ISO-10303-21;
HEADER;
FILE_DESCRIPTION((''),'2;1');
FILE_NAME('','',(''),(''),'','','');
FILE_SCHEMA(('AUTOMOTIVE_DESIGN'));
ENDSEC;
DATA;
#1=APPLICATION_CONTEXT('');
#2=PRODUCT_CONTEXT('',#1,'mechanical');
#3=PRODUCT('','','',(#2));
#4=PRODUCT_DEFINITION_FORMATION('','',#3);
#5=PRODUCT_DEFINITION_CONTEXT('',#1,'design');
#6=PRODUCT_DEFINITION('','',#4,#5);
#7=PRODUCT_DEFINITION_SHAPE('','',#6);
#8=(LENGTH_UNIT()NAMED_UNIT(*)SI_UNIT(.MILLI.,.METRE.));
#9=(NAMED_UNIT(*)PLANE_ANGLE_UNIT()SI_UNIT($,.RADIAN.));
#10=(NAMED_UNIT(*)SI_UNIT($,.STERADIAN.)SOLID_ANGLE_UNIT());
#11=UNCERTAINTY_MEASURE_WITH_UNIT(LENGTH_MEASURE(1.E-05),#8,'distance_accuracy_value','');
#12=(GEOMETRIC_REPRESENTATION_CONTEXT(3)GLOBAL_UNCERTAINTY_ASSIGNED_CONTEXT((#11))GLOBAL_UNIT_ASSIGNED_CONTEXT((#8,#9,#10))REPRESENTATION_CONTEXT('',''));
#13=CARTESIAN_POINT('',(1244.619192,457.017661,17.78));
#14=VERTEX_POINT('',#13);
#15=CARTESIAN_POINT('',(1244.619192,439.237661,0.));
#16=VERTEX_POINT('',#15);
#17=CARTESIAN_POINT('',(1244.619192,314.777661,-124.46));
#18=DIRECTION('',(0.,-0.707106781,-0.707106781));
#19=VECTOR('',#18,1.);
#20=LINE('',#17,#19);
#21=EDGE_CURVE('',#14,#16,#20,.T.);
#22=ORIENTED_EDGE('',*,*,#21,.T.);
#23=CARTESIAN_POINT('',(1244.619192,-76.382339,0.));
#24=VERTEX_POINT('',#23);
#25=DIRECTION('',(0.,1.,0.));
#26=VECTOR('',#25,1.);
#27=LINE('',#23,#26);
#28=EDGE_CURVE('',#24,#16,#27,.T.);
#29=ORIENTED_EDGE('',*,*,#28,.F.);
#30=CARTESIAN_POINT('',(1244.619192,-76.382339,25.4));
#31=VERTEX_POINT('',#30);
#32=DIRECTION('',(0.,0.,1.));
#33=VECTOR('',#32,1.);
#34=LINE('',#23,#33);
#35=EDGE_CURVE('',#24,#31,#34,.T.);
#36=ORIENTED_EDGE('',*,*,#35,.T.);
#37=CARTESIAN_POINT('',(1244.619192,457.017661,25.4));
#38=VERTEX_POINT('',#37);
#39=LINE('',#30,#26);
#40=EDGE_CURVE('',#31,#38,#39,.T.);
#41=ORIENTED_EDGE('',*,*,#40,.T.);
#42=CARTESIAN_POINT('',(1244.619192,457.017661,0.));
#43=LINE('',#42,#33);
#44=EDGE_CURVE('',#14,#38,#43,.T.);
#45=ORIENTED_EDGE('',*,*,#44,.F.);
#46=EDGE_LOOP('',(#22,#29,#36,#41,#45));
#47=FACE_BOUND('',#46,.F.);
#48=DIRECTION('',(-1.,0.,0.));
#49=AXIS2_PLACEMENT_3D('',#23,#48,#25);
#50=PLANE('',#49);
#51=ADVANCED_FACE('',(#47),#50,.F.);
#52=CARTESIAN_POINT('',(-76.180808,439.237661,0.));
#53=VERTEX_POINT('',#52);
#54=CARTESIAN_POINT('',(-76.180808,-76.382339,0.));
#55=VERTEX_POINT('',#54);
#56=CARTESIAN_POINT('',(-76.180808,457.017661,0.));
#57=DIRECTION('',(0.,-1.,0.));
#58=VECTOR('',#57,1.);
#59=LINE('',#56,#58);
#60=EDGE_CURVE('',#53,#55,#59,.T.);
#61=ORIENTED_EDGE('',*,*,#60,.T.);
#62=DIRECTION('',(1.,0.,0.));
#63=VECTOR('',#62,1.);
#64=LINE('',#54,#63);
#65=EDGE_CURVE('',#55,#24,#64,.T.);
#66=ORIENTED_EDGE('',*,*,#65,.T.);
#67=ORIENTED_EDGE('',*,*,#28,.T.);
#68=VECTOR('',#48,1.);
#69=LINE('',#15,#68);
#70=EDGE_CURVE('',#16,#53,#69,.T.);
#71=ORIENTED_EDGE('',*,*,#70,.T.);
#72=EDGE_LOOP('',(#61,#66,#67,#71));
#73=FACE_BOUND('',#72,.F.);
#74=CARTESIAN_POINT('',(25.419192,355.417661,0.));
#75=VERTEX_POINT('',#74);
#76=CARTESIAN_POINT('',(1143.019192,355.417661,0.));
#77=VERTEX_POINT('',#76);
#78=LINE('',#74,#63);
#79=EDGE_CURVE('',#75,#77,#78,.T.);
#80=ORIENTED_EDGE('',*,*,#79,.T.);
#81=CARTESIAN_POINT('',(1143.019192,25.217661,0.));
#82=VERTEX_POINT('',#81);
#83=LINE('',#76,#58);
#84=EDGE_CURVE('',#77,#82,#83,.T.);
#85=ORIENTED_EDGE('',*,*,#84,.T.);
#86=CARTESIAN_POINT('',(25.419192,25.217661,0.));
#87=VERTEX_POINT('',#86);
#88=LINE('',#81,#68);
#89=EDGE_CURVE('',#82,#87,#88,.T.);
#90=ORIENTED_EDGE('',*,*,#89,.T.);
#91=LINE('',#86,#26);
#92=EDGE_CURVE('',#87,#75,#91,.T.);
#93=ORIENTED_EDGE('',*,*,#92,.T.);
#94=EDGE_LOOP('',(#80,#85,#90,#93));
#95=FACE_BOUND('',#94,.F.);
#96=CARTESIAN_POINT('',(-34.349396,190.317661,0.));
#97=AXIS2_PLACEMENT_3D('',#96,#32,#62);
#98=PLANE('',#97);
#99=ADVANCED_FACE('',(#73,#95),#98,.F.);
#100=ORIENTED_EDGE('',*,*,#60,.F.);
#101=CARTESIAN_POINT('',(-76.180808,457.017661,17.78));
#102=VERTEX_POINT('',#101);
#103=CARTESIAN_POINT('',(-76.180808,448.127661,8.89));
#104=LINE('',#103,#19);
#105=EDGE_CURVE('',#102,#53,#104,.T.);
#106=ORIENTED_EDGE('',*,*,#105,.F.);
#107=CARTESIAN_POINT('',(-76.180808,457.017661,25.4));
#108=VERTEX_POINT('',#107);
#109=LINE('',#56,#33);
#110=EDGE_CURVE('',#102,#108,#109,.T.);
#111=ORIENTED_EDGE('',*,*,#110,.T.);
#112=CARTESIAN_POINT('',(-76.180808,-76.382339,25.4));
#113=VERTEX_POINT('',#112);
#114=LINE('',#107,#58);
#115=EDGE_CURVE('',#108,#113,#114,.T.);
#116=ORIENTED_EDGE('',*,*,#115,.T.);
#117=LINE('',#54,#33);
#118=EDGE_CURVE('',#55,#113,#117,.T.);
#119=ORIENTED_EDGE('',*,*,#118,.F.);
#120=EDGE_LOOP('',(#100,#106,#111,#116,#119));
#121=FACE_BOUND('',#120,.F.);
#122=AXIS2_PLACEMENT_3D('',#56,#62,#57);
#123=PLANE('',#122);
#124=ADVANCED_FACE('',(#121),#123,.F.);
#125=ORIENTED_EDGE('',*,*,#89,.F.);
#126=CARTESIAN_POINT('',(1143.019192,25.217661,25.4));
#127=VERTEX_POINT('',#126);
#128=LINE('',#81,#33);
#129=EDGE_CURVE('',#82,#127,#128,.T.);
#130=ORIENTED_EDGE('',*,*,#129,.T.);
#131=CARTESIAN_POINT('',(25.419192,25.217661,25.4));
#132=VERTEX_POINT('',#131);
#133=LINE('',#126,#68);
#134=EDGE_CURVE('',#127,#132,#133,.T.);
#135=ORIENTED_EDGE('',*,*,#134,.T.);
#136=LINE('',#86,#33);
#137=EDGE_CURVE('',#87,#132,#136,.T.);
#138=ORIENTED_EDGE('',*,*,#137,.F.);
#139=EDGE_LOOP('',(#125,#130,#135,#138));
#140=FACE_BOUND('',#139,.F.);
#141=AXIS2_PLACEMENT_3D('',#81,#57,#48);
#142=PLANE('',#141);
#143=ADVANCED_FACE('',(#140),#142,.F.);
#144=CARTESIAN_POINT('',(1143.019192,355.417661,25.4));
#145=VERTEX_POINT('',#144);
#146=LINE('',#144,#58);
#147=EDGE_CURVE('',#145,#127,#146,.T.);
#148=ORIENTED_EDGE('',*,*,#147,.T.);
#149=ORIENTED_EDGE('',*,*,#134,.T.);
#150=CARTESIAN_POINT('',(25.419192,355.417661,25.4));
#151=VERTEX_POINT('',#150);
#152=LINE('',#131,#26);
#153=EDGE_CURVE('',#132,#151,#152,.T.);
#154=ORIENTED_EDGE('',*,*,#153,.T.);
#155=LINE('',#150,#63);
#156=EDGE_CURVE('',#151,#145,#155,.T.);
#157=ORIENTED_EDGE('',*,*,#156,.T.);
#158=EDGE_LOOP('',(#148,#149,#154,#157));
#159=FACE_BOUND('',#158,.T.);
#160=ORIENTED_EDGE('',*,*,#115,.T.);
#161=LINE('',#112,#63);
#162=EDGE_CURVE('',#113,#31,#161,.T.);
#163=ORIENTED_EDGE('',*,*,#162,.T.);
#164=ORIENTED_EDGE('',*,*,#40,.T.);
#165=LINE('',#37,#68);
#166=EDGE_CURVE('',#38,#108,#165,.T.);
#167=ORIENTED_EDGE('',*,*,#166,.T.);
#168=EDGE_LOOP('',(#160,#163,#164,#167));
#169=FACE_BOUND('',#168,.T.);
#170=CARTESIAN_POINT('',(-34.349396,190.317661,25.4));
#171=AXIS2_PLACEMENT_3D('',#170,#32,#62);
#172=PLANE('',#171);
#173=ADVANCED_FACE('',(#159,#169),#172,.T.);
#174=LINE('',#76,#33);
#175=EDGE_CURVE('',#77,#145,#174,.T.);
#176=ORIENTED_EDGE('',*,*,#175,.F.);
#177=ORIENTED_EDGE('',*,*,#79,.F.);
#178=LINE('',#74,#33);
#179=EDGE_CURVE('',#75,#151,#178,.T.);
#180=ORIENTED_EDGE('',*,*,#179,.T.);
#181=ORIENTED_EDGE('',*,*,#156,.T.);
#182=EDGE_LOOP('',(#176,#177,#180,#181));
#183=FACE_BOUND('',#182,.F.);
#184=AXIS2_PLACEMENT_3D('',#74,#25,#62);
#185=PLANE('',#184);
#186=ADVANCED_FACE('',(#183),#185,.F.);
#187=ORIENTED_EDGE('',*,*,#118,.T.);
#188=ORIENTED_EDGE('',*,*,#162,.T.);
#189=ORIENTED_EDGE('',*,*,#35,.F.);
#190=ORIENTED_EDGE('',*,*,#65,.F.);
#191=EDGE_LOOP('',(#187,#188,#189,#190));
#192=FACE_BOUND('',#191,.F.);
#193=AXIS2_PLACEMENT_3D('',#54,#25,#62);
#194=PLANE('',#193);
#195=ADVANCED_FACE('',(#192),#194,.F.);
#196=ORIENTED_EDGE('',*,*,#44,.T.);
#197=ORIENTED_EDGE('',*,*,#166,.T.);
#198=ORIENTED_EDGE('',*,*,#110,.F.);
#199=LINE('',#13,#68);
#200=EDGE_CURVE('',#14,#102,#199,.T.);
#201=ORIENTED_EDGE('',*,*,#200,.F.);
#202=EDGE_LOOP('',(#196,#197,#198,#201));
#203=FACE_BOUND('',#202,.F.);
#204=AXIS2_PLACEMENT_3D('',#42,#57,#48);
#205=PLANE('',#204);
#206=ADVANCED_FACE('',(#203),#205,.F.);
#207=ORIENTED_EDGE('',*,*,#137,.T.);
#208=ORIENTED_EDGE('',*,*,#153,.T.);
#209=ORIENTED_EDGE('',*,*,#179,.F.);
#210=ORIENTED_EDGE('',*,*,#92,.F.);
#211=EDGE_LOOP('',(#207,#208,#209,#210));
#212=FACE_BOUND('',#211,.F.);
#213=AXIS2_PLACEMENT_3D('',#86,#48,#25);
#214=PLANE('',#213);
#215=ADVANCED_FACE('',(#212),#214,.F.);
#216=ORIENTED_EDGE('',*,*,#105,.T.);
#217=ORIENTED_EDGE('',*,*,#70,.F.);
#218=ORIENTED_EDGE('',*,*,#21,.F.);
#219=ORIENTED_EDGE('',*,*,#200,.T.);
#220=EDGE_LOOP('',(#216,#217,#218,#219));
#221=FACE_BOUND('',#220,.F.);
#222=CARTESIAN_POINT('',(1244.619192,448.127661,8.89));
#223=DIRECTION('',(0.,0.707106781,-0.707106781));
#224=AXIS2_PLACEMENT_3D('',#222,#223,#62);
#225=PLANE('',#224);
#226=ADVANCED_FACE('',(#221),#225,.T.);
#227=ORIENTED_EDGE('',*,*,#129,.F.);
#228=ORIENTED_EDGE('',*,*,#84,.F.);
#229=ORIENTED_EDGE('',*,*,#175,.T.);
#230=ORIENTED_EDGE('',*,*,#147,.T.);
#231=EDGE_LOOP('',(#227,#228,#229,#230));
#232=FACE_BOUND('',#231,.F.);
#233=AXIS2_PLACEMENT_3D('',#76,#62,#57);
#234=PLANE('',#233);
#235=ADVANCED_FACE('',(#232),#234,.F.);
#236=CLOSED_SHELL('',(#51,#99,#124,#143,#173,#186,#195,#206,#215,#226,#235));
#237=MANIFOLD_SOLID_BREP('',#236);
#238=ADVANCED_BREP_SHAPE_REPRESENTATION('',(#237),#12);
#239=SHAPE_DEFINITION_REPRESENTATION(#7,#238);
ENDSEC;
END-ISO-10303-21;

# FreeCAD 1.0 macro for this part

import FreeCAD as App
import Part
import Sketcher

V = App.Vector
Q = App.Units.Quantity


def edges_at(feature, points):
    """Names of the edges that pass closest to the given points."""
    edges = feature.Shape.Edges
    near = lambda p: min(range(len(edges)), key=lambda i: edges[i].distToShape(Part.Vertex(*p))[0])
    return sorted({f"Edge{near(p) + 1}" for p in points})


def add_polygon(sketch, points):
    """Adds a closed chain of lines whose ends are joined by coincident constraints."""
    first, n = sketch.GeometryCount, len(points)
    for a, b in zip(points, points[1:] + points[:1]):
        sketch.addGeometry(Part.LineSegment(App.Vector(*a, 0), App.Vector(*b, 0)), False)
    for i in range(n):
        sketch.addConstraint(Sketcher.Constraint("Coincident", first + i, 2, first + (i + 1) % n, 1))

doc = App.newDocument("Part")
params = doc.addObject("Spreadsheet::Sheet", "Params")
for row, (alias, value) in enumerate([
    ("sketch1_width", "52 in"),
    ("sketch1_width2", "44 in"),
    ("sketch1_height", "21 in"),
    ("sketch1_height2", "13 in"),
    ("pad1_length", "1 in"),
    ("chamfer_size", "0.7 in"),
], start=1):
    params.set(f"A{row}", alias)
    params.set(f"B{row}", "=" + value)
    params.setAlias(f"B{row}", alias)

body = doc.addObject("PartDesign::Body", "Body")

# Sketch on XY plane
sketch1 = doc.addObject("Sketcher::SketchObject", "Sketch")
body.addObject(sketch1)
sketch1.AttachmentSupport = (doc.XY_Plane, [""])
sketch1.MapMode = "FlatFace"
add_polygon(sketch1, [(-76.180808, 457.017661), (-76.180808, -76.382339), (1244.619192, -76.382339), (1244.619192, 457.017661)])  # lines 0-3
add_polygon(sketch1, [(25.419192, 25.217661), (25.419192, 355.417661), (1143.019192, 355.417661), (1143.019192, 25.217661)])  # lines 4-7
sketch1.addConstraint(Sketcher.Constraint("Vertical", 0))
sketch1.addConstraint(Sketcher.Constraint("Horizontal", 1))
sketch1.addConstraint(Sketcher.Constraint("Vertical", 2))
sketch1.addConstraint(Sketcher.Constraint("Horizontal", 3))
sketch1.addConstraint(Sketcher.Constraint("Vertical", 4))
sketch1.addConstraint(Sketcher.Constraint("Horizontal", 5))
sketch1.addConstraint(Sketcher.Constraint("Vertical", 6))
sketch1.addConstraint(Sketcher.Constraint("Horizontal", 7))
sketch1.addConstraint(Sketcher.Constraint("DistanceX", 1, 1, 1, 2, Q("52 in")))
sketch1.addConstraint(Sketcher.Constraint("DistanceX", 5, 1, 5, 2, Q("44 in")))
sketch1.addConstraint(Sketcher.Constraint("DistanceY", 0, 2, 0, 1, Q("21 in")))
sketch1.addConstraint(Sketcher.Constraint("DistanceY", 4, 1, 4, 2, Q("13 in")))
sketch1.addConstraint(Sketcher.Constraint("DistanceX", 3, 2, 4, 2, Q("4 in")))
sketch1.addConstraint(Sketcher.Constraint("DistanceY", 4, 2, 3, 2, Q("4 in")))
sketch1.addConstraint(Sketcher.Constraint("DistanceX", 0, 2, -1, 1, Q("76.180808 mm")))
sketch1.addConstraint(Sketcher.Constraint("DistanceY", 0, 2, -1, 1, Q("76.382339 mm")))
sketch1.setExpression("Constraints[16]", "Params.sketch1_width")
sketch1.setExpression("Constraints[17]", "Params.sketch1_width2")
sketch1.setExpression("Constraints[18]", "Params.sketch1_height")
sketch1.setExpression("Constraints[19]", "Params.sketch1_height2")
pad1 = doc.addObject("PartDesign::Pad", "Pad")
body.addObject(pad1)
pad1.Profile = sketch1
pad1.setExpression("Length", "Params.pad1_length")
doc.recompute()

chamfer = doc.addObject("PartDesign::Chamfer", "Chamfer")
body.addObject(chamfer)
chamfer.Base = (pad1, edges_at(pad1, [(584.219, 457.018, 0)]))
chamfer.setExpression("Size", "Params.chamfer_size")

doc.recompute()
